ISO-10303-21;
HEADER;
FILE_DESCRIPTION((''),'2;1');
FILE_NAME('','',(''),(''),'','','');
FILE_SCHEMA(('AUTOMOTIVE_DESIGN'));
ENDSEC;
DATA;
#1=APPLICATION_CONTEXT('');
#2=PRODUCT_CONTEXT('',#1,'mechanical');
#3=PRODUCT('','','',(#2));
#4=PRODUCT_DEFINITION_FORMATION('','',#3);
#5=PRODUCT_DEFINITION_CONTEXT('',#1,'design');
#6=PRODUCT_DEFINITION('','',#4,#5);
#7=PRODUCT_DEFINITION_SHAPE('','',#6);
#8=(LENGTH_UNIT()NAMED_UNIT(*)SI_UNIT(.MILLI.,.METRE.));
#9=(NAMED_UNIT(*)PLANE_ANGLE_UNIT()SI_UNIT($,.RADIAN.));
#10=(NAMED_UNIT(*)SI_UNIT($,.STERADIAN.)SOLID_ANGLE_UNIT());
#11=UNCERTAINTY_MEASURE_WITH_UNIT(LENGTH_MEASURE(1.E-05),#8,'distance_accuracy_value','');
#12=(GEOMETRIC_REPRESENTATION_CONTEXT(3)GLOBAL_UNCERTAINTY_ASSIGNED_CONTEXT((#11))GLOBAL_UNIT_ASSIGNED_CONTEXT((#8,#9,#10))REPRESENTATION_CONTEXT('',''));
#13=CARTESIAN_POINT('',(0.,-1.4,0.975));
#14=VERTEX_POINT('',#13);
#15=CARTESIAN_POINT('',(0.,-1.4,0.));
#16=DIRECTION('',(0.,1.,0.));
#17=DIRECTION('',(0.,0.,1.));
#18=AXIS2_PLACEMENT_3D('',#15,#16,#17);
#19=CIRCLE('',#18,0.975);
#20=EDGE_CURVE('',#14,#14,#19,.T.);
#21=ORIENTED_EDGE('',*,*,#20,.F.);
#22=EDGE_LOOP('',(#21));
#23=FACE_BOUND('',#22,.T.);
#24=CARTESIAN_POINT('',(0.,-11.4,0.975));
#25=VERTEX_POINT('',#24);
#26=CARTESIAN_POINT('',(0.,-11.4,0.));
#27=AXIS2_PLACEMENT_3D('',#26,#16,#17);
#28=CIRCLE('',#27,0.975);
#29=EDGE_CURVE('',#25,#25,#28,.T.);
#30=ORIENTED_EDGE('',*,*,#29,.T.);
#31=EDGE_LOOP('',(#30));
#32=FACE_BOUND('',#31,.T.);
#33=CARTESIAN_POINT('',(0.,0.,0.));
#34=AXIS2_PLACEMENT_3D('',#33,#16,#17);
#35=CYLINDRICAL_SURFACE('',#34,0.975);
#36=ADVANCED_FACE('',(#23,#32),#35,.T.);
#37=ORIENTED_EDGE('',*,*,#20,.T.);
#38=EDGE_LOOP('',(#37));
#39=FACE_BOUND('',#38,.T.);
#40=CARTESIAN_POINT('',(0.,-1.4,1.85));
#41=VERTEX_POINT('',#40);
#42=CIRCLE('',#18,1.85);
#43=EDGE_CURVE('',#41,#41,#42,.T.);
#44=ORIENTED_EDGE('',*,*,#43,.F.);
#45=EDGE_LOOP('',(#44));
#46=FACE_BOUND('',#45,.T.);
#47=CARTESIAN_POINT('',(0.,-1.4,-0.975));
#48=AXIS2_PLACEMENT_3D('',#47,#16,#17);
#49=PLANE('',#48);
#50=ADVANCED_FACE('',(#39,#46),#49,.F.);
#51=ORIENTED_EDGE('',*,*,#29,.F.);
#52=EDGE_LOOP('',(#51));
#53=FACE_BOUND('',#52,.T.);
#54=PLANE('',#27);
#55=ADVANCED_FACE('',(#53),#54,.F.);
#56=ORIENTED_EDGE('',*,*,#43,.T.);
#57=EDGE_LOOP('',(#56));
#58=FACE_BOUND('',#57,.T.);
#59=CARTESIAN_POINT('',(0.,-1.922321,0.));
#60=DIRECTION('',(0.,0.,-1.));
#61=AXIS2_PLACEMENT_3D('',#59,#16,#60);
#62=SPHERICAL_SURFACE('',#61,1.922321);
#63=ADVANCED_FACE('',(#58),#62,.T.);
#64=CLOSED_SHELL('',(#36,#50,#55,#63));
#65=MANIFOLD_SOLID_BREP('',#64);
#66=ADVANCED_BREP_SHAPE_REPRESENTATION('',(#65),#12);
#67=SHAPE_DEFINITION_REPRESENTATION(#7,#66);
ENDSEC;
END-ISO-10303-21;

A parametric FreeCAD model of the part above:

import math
import FreeCAD as App
import Part
import Sketcher
Q = App.Units.Quantity

doc = App.newDocument("Part")
body = doc.addObject("PartDesign::Body", "Body")

# Sketch on YZ plane
sketch1 = doc.addObject("Sketcher::SketchObject", "Sketch")
body.addObject(sketch1)
sketch1.AttachmentSupport = (doc.YZ_Plane, [""])
sketch1.MapMode = "FlatFace"
sketch1.addGeometry(Part.LineSegment(App.Vector(-11.4, 0, 0), App.Vector(-11.4, -1, 0)), False)
sketch1.addGeometry(Part.LineSegment(App.Vector(-11.4, -1, 0), App.Vector(-1.4, -1, 0)), False)
sketch1.addGeometry(Part.LineSegment(App.Vector(-1.4, -1, 0), App.Vector(-1.4, -1.9, 0)), False)
sketch1.addGeometry(Part.ArcOfCircle(Part.Circle(App.Vector(-1.9, 0, 0), App.Vector(0, 0, 1), 1.9), math.radians(-74), math.radians(0)), False)
sketch1.addGeometry(Part.LineSegment(App.Vector(0, 0, 0), App.Vector(-11.4, 0, 0)), False)
sketch1.addConstraint(Sketcher.Constraint("Coincident", 0, 2, 1, 1))
sketch1.addConstraint(Sketcher.Constraint("Coincident", 1, 2, 2, 1))
sketch1.addConstraint(Sketcher.Constraint("Coincident", 2, 2, 3, 1))
sketch1.addConstraint(Sketcher.Constraint("Coincident", 3, 2, 4, 1))
sketch1.addConstraint(Sketcher.Constraint("Coincident", 4, 2, 0, 1))
sketch1.addConstraint(Sketcher.Constraint("Vertical", 0))
sketch1.addConstraint(Sketcher.Constraint("Horizontal", 1))
sketch1.addConstraint(Sketcher.Constraint("Vertical", 2))
sketch1.addConstraint(Sketcher.Constraint("Horizontal", 4))
sketch1.addConstraint(Sketcher.Constraint("Coincident", 3, 2, -1, 1))
sketch1.addConstraint(Sketcher.Constraint("PointOnObject", 3, 3, -1))
sketch1.addConstraint(Sketcher.Constraint("DistanceX", 1, 1, 1, 2, Q("10 mm")))
sketch1.addConstraint(Sketcher.Constraint("DistanceX", 4, 2, 4, 1, Q("11.4 mm")))
sketch1.addConstraint(Sketcher.Constraint("DistanceY", 0, 2, 0, 1, Q("0.975 mm")))
sketch1.addConstraint(Sketcher.Constraint("DistanceY", 2, 2, 2, 1, Q("0.875 mm")))
revolution = doc.addObject("PartDesign::Revolution", "Revolution")
body.addObject(revolution)
revolution.Profile = sketch1
revolution.ReferenceAxis = (sketch1, ["H_Axis"])
revolution.Angle = 360

doc.recompute()
